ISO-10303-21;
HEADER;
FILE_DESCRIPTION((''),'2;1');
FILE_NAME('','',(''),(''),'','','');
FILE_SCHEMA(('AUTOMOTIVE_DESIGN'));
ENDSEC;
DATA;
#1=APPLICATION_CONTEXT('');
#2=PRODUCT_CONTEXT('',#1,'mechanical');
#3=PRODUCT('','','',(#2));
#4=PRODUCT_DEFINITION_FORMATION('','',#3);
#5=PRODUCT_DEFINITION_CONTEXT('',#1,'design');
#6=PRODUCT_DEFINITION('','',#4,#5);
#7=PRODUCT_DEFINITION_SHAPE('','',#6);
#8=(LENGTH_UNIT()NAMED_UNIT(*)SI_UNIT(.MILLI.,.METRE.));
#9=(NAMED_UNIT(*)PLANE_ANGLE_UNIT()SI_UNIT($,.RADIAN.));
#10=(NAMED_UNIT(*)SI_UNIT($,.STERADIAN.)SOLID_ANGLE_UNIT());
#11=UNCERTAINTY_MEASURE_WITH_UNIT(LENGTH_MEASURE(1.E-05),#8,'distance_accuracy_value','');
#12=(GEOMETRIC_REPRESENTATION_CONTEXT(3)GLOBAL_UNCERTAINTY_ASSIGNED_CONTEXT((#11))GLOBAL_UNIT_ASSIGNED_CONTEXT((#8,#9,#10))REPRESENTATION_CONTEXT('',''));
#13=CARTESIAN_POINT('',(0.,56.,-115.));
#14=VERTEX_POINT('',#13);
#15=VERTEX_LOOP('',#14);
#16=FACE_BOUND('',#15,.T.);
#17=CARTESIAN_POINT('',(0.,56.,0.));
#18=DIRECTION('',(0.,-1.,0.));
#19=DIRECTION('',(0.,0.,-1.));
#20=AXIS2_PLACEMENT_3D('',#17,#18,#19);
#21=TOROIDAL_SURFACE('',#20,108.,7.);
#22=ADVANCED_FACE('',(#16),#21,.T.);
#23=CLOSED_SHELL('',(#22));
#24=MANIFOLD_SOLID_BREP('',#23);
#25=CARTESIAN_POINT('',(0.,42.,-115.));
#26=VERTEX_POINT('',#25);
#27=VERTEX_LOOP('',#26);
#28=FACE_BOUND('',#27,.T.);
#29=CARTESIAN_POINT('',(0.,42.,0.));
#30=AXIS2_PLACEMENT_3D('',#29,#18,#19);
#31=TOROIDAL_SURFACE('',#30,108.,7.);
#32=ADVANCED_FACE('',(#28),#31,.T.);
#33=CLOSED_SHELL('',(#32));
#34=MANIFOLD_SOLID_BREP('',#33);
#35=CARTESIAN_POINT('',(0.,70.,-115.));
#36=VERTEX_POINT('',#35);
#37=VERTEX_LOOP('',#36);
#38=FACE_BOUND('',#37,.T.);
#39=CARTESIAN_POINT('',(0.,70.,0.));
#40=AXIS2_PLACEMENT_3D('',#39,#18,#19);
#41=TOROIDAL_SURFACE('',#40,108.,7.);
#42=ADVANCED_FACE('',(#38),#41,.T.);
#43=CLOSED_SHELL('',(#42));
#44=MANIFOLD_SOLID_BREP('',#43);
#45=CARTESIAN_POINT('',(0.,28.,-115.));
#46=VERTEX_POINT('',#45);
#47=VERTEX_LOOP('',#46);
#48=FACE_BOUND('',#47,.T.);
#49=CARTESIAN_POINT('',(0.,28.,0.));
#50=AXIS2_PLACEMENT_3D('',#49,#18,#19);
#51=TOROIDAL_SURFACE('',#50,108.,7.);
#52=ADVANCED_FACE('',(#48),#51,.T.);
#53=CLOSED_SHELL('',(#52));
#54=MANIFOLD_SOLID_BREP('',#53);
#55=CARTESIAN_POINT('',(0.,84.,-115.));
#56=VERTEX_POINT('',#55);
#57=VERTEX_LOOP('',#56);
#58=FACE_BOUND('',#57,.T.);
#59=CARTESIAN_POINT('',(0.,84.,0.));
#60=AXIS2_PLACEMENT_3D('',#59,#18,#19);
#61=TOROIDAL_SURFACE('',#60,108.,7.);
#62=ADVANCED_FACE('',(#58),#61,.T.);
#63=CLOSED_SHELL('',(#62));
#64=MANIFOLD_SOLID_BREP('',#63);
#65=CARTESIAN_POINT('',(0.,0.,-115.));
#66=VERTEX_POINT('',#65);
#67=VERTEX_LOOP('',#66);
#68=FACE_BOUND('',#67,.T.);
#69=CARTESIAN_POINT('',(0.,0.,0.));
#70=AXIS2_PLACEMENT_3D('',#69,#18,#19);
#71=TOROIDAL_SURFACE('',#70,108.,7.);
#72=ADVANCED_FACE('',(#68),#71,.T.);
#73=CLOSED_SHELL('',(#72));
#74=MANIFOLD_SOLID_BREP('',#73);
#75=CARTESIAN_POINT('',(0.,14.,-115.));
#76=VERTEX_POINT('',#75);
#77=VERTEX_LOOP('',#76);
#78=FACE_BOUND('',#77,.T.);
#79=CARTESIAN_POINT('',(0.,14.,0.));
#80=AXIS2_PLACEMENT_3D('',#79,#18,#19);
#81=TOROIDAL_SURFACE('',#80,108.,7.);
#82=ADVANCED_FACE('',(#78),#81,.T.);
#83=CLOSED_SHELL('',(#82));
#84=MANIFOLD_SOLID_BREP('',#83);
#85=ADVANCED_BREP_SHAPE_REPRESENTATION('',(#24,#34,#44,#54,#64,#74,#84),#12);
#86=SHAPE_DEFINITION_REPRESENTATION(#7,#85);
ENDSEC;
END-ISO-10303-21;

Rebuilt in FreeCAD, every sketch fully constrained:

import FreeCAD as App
import Part
import Sketcher
from FreeCAD import Vector
Q = App.Units.Quantity

doc = App.newDocument("Part")
body = doc.addObject("PartDesign::Body", "Body")

# Sketch on XY plane
sketch1 = body.newObject("Sketcher::SketchObject", "Sketch")
sketch1.AttachmentSupport = (doc.getObject("XY_Plane"), [""])
sketch1.MapMode = "FlatFace"
sketch1.addGeometry(Part.Circle(Vector(108, 0, 0), Vector(0, 0, 1), 7), False)
sketch1.addConstraint([
    Sketcher.Constraint("PointOnObject", 0, 3, -1),
    Sketcher.Constraint("Diameter", 0, Q("14 mm")),
    Sketcher.Constraint("DistanceX", -1, 1, 0, 3, Q("108 mm")),
])
revolution = body.newObject("PartDesign::Revolution", "Revolution")
revolution.Profile = sketch1
revolution.ReferenceAxis = (sketch1, ["V_Axis"])
revolution.Angle = 360
body2 = doc.addObject("PartDesign::Body", "Body001")

# Sketch on XY plane
sketch2 = body2.newObject("Sketcher::SketchObject", "Sketch001")
sketch2.AttachmentSupport = (doc.getObject("XY_Plane001"), [""])
sketch2.MapMode = "FlatFace"
sketch2.addGeometry(Part.Circle(Vector(108, 14, 0), Vector(0, 0, 1), 7), False)
sketch2.addConstraint([
    Sketcher.Constraint("Diameter", 0, Q("14 mm")),
    Sketcher.Constraint("DistanceX", -1, 1, 0, 3, Q("108 mm")),
    Sketcher.Constraint("DistanceY", -1, 1, 0, 3, Q("14 mm")),
])
revolution2 = body2.newObject("PartDesign::Revolution", "Revolution001")
revolution2.Profile = sketch2
revolution2.ReferenceAxis = (sketch2, ["V_Axis"])
revolution2.Angle = 360
body3 = doc.addObject("PartDesign::Body", "Body002")

# Sketch on XY plane
sketch3 = body3.newObject("Sketcher::SketchObject", "Sketch002")
sketch3.AttachmentSupport = (doc.getObject("XY_Plane002"), [""])
sketch3.MapMode = "FlatFace"
sketch3.addGeometry(Part.Circle(Vector(108, 28, 0), Vector(0, 0, 1), 7), False)
sketch3.addConstraint([
    Sketcher.Constraint("Diameter", 0, Q("14 mm")),
    Sketcher.Constraint("DistanceX", -1, 1, 0, 3, Q("108 mm")),
    Sketcher.Constraint("DistanceY", -1, 1, 0, 3, Q("28 mm")),
])
revolution3 = body3.newObject("PartDesign::Revolution", "Revolution002")
revolution3.Profile = sketch3
revolution3.ReferenceAxis = (sketch3, ["V_Axis"])
revolution3.Angle = 360
body4 = doc.addObject("PartDesign::Body", "Body003")

# Sketch on XY plane
sketch4 = body4.newObject("Sketcher::SketchObject", "Sketch003")
sketch4.AttachmentSupport = (doc.getObject("XY_Plane003"), [""])
sketch4.MapMode = "FlatFace"
sketch4.addGeometry(Part.Circle(Vector(108, 42, 0), Vector(0, 0, 1), 7), False)
sketch4.addConstraint([
    Sketcher.Constraint("Diameter", 0, Q("14 mm")),
    Sketcher.Constraint("DistanceX", -1, 1, 0, 3, Q("108 mm")),
    Sketcher.Constraint("DistanceY", -1, 1, 0, 3, Q("42 mm")),
])
revolution4 = body4.newObject("PartDesign::Revolution", "Revolution003")
revolution4.Profile = sketch4
revolution4.ReferenceAxis = (sketch4, ["V_Axis"])
revolution4.Angle = 360
body5 = doc.addObject("PartDesign::Body", "Body004")

# Sketch on XY plane
sketch5 = body5.newObject("Sketcher::SketchObject", "Sketch004")
sketch5.AttachmentSupport = (doc.getObject("XY_Plane004"), [""])
sketch5.MapMode = "FlatFace"
sketch5.addGeometry(Part.Circle(Vector(108, 56, 0), Vector(0, 0, 1), 7), False)
sketch5.addConstraint([
    Sketcher.Constraint("Diameter", 0, Q("14 mm")),
    Sketcher.Constraint("DistanceX", -1, 1, 0, 3, Q("108 mm")),
    Sketcher.Constraint("DistanceY", -1, 1, 0, 3, Q("56 mm")),
])
revolution5 = body5.newObject("PartDesign::Revolution", "Revolution004")
revolution5.Profile = sketch5
revolution5.ReferenceAxis = (sketch5, ["V_Axis"])
revolution5.Angle = 360
body6 = doc.addObject("PartDesign::Body", "Body005")

# Sketch on XY plane
sketch6 = body6.newObject("Sketcher::SketchObject", "Sketch005")
sketch6.AttachmentSupport = (doc.getObject("XY_Plane005"), [""])
sketch6.MapMode = "FlatFace"
sketch6.addGeometry(Part.Circle(Vector(108, 70, 0), Vector(0, 0, 1), 7), False)
sketch6.addConstraint([
    Sketcher.Constraint("Diameter", 0, Q("14 mm")),
    Sketcher.Constraint("DistanceX", -1, 1, 0, 3, Q("108 mm")),
    Sketcher.Constraint("DistanceY", -1, 1, 0, 3, Q("70 mm")),
])
revolution6 = body6.newObject("PartDesign::Revolution", "Revolution005")
revolution6.Profile = sketch6
revolution6.ReferenceAxis = (sketch6, ["V_Axis"])
revolution6.Angle = 360
body7 = doc.addObject("PartDesign::Body", "Body006")

# Sketch on XY plane
sketch7 = body7.newObject("Sketcher::SketchObject", "Sketch006")
sketch7.AttachmentSupport = (doc.getObject("XY_Plane006"), [""])
sketch7.MapMode = "FlatFace"
sketch7.addGeometry(Part.Circle(Vector(108, 84, 0), Vector(0, 0, 1), 7), False)
sketch7.addConstraint([
    Sketcher.Constraint("Diameter", 0, Q("14 mm")),
    Sketcher.Constraint("DistanceX", -1, 1, 0, 3, Q("108 mm")),
    Sketcher.Constraint("DistanceY", -1, 1, 0, 3, Q("84 mm")),
])
revolution7 = body7.newObject("PartDesign::Revolution", "Revolution006")
revolution7.Profile = sketch7
revolution7.ReferenceAxis = (sketch7, ["V_Axis"])
revolution7.Angle = 360

doc.recompute()
